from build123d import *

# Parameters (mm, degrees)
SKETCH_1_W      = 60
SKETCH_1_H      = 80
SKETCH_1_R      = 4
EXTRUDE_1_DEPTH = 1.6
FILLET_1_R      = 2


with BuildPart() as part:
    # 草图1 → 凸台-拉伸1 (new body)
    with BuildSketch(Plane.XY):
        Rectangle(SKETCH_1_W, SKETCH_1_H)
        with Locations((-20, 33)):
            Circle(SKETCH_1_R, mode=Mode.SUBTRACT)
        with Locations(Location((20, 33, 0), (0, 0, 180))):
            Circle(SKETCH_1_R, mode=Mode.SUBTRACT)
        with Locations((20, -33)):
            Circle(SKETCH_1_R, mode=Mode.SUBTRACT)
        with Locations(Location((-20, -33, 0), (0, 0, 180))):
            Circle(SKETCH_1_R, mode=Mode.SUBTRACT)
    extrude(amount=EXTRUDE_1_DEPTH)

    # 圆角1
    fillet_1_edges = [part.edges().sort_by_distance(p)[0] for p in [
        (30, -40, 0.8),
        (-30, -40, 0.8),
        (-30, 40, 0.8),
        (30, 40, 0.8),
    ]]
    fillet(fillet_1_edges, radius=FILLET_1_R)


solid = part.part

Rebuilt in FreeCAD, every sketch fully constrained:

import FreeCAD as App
import Part
import Sketcher
Q = App.Units.Quantity


def edges_at(feature, points):
    """Names of the edges that pass closest to the given points."""
    edges = feature.Shape.Edges
    near = lambda p: min(range(len(edges)), key=lambda i: edges[i].distToShape(Part.Vertex(*p))[0])
    return sorted({f"Edge{near(p) + 1}" for p in points})


def add_polygon(sketch, points):
    """Adds a closed chain of lines whose ends are joined by coincident constraints."""
    first, n = sketch.GeometryCount, len(points)
    for a, b in zip(points, points[1:] + points[:1]):
        sketch.addGeometry(Part.LineSegment(App.Vector(*a, 0), App.Vector(*b, 0)), False)
    for i in range(n):
        sketch.addConstraint(Sketcher.Constraint("Coincident", first + i, 2, first + (i + 1) % n, 1))

doc = App.newDocument("Part")
body = doc.addObject("PartDesign::Body", "Body")

# Sketch on XY plane
sketch1 = body.newObject("Sketcher::SketchObject", "Sketch")
sketch1.AttachmentSupport = (doc.getObject("XY_Plane"), [""])
sketch1.MapMode = "FlatFace"
add_polygon(sketch1, [(-30, 40), (-30, -40), (30, -40), (30, 40)])  # lines 0-3
sketch1.addGeometry(Part.Circle(App.Vector(-20, -33, 0), App.Vector(0, 0, 1), 4), False)  # 4
sketch1.addGeometry(Part.Circle(App.Vector(20, -33, 0), App.Vector(0, 0, 1), 4), False)  # 5
sketch1.addGeometry(Part.Circle(App.Vector(-20, 33, 0), App.Vector(0, 0, 1), 4), False)  # 6
sketch1.addGeometry(Part.Circle(App.Vector(20, 33, 0), App.Vector(0, 0, 1), 4), False)  # 7
sketch1.addConstraint(Sketcher.Constraint("Vertical", 0))
sketch1.addConstraint(Sketcher.Constraint("Horizontal", 1))
sketch1.addConstraint(Sketcher.Constraint("Vertical", 2))
sketch1.addConstraint(Sketcher.Constraint("Horizontal", 3))
sketch1.addConstraint(Sketcher.Constraint("Equal", 4, 5))
sketch1.addConstraint(Sketcher.Constraint("Equal", 5, 6))
sketch1.addConstraint(Sketcher.Constraint("Equal", 6, 7))
sketch1.addConstraint(Sketcher.Constraint("Symmetric", 5, 3, 6, 3, -1, 1))
sketch1.addConstraint(Sketcher.Constraint("Symmetric", 4, 3, 7, 3, -1, 1))
sketch1.addConstraint(Sketcher.Constraint("Symmetric", 0, 2, 2, 2, -1, 1))
sketch1.addConstraint(Sketcher.Constraint("Symmetric", 4, 3, 5, 3, -2))
sketch1.addConstraint(Sketcher.Constraint("Diameter", 4, Q("8 mm")))
sketch1.addConstraint(Sketcher.Constraint("DistanceX", 1, 1, 1, 2, Q("60 mm")))
sketch1.addConstraint(Sketcher.Constraint("DistanceY", 0, 2, 0, 1, Q("80 mm")))
sketch1.addConstraint(Sketcher.Constraint("DistanceX", 4, 3, -1, 1, Q("20 mm")))
sketch1.addConstraint(Sketcher.Constraint("DistanceY", 4, 3, -1, 1, Q("33 mm")))
pad1 = body.newObject("PartDesign::Pad", "Pad")
pad1.Profile = sketch1
pad1.Length = 1.6
doc.recompute()

fillet = body.newObject("PartDesign::Fillet", "Fillet")
fillet.Base = (pad1, edges_at(pad1, [
    (30, -40, 0.8),
    (-30, -40, 0.8),
    (-30, 40, 0.8),
    (30, 40, 0.8),
]))
fillet.Radius = 2

doc.recompute()
